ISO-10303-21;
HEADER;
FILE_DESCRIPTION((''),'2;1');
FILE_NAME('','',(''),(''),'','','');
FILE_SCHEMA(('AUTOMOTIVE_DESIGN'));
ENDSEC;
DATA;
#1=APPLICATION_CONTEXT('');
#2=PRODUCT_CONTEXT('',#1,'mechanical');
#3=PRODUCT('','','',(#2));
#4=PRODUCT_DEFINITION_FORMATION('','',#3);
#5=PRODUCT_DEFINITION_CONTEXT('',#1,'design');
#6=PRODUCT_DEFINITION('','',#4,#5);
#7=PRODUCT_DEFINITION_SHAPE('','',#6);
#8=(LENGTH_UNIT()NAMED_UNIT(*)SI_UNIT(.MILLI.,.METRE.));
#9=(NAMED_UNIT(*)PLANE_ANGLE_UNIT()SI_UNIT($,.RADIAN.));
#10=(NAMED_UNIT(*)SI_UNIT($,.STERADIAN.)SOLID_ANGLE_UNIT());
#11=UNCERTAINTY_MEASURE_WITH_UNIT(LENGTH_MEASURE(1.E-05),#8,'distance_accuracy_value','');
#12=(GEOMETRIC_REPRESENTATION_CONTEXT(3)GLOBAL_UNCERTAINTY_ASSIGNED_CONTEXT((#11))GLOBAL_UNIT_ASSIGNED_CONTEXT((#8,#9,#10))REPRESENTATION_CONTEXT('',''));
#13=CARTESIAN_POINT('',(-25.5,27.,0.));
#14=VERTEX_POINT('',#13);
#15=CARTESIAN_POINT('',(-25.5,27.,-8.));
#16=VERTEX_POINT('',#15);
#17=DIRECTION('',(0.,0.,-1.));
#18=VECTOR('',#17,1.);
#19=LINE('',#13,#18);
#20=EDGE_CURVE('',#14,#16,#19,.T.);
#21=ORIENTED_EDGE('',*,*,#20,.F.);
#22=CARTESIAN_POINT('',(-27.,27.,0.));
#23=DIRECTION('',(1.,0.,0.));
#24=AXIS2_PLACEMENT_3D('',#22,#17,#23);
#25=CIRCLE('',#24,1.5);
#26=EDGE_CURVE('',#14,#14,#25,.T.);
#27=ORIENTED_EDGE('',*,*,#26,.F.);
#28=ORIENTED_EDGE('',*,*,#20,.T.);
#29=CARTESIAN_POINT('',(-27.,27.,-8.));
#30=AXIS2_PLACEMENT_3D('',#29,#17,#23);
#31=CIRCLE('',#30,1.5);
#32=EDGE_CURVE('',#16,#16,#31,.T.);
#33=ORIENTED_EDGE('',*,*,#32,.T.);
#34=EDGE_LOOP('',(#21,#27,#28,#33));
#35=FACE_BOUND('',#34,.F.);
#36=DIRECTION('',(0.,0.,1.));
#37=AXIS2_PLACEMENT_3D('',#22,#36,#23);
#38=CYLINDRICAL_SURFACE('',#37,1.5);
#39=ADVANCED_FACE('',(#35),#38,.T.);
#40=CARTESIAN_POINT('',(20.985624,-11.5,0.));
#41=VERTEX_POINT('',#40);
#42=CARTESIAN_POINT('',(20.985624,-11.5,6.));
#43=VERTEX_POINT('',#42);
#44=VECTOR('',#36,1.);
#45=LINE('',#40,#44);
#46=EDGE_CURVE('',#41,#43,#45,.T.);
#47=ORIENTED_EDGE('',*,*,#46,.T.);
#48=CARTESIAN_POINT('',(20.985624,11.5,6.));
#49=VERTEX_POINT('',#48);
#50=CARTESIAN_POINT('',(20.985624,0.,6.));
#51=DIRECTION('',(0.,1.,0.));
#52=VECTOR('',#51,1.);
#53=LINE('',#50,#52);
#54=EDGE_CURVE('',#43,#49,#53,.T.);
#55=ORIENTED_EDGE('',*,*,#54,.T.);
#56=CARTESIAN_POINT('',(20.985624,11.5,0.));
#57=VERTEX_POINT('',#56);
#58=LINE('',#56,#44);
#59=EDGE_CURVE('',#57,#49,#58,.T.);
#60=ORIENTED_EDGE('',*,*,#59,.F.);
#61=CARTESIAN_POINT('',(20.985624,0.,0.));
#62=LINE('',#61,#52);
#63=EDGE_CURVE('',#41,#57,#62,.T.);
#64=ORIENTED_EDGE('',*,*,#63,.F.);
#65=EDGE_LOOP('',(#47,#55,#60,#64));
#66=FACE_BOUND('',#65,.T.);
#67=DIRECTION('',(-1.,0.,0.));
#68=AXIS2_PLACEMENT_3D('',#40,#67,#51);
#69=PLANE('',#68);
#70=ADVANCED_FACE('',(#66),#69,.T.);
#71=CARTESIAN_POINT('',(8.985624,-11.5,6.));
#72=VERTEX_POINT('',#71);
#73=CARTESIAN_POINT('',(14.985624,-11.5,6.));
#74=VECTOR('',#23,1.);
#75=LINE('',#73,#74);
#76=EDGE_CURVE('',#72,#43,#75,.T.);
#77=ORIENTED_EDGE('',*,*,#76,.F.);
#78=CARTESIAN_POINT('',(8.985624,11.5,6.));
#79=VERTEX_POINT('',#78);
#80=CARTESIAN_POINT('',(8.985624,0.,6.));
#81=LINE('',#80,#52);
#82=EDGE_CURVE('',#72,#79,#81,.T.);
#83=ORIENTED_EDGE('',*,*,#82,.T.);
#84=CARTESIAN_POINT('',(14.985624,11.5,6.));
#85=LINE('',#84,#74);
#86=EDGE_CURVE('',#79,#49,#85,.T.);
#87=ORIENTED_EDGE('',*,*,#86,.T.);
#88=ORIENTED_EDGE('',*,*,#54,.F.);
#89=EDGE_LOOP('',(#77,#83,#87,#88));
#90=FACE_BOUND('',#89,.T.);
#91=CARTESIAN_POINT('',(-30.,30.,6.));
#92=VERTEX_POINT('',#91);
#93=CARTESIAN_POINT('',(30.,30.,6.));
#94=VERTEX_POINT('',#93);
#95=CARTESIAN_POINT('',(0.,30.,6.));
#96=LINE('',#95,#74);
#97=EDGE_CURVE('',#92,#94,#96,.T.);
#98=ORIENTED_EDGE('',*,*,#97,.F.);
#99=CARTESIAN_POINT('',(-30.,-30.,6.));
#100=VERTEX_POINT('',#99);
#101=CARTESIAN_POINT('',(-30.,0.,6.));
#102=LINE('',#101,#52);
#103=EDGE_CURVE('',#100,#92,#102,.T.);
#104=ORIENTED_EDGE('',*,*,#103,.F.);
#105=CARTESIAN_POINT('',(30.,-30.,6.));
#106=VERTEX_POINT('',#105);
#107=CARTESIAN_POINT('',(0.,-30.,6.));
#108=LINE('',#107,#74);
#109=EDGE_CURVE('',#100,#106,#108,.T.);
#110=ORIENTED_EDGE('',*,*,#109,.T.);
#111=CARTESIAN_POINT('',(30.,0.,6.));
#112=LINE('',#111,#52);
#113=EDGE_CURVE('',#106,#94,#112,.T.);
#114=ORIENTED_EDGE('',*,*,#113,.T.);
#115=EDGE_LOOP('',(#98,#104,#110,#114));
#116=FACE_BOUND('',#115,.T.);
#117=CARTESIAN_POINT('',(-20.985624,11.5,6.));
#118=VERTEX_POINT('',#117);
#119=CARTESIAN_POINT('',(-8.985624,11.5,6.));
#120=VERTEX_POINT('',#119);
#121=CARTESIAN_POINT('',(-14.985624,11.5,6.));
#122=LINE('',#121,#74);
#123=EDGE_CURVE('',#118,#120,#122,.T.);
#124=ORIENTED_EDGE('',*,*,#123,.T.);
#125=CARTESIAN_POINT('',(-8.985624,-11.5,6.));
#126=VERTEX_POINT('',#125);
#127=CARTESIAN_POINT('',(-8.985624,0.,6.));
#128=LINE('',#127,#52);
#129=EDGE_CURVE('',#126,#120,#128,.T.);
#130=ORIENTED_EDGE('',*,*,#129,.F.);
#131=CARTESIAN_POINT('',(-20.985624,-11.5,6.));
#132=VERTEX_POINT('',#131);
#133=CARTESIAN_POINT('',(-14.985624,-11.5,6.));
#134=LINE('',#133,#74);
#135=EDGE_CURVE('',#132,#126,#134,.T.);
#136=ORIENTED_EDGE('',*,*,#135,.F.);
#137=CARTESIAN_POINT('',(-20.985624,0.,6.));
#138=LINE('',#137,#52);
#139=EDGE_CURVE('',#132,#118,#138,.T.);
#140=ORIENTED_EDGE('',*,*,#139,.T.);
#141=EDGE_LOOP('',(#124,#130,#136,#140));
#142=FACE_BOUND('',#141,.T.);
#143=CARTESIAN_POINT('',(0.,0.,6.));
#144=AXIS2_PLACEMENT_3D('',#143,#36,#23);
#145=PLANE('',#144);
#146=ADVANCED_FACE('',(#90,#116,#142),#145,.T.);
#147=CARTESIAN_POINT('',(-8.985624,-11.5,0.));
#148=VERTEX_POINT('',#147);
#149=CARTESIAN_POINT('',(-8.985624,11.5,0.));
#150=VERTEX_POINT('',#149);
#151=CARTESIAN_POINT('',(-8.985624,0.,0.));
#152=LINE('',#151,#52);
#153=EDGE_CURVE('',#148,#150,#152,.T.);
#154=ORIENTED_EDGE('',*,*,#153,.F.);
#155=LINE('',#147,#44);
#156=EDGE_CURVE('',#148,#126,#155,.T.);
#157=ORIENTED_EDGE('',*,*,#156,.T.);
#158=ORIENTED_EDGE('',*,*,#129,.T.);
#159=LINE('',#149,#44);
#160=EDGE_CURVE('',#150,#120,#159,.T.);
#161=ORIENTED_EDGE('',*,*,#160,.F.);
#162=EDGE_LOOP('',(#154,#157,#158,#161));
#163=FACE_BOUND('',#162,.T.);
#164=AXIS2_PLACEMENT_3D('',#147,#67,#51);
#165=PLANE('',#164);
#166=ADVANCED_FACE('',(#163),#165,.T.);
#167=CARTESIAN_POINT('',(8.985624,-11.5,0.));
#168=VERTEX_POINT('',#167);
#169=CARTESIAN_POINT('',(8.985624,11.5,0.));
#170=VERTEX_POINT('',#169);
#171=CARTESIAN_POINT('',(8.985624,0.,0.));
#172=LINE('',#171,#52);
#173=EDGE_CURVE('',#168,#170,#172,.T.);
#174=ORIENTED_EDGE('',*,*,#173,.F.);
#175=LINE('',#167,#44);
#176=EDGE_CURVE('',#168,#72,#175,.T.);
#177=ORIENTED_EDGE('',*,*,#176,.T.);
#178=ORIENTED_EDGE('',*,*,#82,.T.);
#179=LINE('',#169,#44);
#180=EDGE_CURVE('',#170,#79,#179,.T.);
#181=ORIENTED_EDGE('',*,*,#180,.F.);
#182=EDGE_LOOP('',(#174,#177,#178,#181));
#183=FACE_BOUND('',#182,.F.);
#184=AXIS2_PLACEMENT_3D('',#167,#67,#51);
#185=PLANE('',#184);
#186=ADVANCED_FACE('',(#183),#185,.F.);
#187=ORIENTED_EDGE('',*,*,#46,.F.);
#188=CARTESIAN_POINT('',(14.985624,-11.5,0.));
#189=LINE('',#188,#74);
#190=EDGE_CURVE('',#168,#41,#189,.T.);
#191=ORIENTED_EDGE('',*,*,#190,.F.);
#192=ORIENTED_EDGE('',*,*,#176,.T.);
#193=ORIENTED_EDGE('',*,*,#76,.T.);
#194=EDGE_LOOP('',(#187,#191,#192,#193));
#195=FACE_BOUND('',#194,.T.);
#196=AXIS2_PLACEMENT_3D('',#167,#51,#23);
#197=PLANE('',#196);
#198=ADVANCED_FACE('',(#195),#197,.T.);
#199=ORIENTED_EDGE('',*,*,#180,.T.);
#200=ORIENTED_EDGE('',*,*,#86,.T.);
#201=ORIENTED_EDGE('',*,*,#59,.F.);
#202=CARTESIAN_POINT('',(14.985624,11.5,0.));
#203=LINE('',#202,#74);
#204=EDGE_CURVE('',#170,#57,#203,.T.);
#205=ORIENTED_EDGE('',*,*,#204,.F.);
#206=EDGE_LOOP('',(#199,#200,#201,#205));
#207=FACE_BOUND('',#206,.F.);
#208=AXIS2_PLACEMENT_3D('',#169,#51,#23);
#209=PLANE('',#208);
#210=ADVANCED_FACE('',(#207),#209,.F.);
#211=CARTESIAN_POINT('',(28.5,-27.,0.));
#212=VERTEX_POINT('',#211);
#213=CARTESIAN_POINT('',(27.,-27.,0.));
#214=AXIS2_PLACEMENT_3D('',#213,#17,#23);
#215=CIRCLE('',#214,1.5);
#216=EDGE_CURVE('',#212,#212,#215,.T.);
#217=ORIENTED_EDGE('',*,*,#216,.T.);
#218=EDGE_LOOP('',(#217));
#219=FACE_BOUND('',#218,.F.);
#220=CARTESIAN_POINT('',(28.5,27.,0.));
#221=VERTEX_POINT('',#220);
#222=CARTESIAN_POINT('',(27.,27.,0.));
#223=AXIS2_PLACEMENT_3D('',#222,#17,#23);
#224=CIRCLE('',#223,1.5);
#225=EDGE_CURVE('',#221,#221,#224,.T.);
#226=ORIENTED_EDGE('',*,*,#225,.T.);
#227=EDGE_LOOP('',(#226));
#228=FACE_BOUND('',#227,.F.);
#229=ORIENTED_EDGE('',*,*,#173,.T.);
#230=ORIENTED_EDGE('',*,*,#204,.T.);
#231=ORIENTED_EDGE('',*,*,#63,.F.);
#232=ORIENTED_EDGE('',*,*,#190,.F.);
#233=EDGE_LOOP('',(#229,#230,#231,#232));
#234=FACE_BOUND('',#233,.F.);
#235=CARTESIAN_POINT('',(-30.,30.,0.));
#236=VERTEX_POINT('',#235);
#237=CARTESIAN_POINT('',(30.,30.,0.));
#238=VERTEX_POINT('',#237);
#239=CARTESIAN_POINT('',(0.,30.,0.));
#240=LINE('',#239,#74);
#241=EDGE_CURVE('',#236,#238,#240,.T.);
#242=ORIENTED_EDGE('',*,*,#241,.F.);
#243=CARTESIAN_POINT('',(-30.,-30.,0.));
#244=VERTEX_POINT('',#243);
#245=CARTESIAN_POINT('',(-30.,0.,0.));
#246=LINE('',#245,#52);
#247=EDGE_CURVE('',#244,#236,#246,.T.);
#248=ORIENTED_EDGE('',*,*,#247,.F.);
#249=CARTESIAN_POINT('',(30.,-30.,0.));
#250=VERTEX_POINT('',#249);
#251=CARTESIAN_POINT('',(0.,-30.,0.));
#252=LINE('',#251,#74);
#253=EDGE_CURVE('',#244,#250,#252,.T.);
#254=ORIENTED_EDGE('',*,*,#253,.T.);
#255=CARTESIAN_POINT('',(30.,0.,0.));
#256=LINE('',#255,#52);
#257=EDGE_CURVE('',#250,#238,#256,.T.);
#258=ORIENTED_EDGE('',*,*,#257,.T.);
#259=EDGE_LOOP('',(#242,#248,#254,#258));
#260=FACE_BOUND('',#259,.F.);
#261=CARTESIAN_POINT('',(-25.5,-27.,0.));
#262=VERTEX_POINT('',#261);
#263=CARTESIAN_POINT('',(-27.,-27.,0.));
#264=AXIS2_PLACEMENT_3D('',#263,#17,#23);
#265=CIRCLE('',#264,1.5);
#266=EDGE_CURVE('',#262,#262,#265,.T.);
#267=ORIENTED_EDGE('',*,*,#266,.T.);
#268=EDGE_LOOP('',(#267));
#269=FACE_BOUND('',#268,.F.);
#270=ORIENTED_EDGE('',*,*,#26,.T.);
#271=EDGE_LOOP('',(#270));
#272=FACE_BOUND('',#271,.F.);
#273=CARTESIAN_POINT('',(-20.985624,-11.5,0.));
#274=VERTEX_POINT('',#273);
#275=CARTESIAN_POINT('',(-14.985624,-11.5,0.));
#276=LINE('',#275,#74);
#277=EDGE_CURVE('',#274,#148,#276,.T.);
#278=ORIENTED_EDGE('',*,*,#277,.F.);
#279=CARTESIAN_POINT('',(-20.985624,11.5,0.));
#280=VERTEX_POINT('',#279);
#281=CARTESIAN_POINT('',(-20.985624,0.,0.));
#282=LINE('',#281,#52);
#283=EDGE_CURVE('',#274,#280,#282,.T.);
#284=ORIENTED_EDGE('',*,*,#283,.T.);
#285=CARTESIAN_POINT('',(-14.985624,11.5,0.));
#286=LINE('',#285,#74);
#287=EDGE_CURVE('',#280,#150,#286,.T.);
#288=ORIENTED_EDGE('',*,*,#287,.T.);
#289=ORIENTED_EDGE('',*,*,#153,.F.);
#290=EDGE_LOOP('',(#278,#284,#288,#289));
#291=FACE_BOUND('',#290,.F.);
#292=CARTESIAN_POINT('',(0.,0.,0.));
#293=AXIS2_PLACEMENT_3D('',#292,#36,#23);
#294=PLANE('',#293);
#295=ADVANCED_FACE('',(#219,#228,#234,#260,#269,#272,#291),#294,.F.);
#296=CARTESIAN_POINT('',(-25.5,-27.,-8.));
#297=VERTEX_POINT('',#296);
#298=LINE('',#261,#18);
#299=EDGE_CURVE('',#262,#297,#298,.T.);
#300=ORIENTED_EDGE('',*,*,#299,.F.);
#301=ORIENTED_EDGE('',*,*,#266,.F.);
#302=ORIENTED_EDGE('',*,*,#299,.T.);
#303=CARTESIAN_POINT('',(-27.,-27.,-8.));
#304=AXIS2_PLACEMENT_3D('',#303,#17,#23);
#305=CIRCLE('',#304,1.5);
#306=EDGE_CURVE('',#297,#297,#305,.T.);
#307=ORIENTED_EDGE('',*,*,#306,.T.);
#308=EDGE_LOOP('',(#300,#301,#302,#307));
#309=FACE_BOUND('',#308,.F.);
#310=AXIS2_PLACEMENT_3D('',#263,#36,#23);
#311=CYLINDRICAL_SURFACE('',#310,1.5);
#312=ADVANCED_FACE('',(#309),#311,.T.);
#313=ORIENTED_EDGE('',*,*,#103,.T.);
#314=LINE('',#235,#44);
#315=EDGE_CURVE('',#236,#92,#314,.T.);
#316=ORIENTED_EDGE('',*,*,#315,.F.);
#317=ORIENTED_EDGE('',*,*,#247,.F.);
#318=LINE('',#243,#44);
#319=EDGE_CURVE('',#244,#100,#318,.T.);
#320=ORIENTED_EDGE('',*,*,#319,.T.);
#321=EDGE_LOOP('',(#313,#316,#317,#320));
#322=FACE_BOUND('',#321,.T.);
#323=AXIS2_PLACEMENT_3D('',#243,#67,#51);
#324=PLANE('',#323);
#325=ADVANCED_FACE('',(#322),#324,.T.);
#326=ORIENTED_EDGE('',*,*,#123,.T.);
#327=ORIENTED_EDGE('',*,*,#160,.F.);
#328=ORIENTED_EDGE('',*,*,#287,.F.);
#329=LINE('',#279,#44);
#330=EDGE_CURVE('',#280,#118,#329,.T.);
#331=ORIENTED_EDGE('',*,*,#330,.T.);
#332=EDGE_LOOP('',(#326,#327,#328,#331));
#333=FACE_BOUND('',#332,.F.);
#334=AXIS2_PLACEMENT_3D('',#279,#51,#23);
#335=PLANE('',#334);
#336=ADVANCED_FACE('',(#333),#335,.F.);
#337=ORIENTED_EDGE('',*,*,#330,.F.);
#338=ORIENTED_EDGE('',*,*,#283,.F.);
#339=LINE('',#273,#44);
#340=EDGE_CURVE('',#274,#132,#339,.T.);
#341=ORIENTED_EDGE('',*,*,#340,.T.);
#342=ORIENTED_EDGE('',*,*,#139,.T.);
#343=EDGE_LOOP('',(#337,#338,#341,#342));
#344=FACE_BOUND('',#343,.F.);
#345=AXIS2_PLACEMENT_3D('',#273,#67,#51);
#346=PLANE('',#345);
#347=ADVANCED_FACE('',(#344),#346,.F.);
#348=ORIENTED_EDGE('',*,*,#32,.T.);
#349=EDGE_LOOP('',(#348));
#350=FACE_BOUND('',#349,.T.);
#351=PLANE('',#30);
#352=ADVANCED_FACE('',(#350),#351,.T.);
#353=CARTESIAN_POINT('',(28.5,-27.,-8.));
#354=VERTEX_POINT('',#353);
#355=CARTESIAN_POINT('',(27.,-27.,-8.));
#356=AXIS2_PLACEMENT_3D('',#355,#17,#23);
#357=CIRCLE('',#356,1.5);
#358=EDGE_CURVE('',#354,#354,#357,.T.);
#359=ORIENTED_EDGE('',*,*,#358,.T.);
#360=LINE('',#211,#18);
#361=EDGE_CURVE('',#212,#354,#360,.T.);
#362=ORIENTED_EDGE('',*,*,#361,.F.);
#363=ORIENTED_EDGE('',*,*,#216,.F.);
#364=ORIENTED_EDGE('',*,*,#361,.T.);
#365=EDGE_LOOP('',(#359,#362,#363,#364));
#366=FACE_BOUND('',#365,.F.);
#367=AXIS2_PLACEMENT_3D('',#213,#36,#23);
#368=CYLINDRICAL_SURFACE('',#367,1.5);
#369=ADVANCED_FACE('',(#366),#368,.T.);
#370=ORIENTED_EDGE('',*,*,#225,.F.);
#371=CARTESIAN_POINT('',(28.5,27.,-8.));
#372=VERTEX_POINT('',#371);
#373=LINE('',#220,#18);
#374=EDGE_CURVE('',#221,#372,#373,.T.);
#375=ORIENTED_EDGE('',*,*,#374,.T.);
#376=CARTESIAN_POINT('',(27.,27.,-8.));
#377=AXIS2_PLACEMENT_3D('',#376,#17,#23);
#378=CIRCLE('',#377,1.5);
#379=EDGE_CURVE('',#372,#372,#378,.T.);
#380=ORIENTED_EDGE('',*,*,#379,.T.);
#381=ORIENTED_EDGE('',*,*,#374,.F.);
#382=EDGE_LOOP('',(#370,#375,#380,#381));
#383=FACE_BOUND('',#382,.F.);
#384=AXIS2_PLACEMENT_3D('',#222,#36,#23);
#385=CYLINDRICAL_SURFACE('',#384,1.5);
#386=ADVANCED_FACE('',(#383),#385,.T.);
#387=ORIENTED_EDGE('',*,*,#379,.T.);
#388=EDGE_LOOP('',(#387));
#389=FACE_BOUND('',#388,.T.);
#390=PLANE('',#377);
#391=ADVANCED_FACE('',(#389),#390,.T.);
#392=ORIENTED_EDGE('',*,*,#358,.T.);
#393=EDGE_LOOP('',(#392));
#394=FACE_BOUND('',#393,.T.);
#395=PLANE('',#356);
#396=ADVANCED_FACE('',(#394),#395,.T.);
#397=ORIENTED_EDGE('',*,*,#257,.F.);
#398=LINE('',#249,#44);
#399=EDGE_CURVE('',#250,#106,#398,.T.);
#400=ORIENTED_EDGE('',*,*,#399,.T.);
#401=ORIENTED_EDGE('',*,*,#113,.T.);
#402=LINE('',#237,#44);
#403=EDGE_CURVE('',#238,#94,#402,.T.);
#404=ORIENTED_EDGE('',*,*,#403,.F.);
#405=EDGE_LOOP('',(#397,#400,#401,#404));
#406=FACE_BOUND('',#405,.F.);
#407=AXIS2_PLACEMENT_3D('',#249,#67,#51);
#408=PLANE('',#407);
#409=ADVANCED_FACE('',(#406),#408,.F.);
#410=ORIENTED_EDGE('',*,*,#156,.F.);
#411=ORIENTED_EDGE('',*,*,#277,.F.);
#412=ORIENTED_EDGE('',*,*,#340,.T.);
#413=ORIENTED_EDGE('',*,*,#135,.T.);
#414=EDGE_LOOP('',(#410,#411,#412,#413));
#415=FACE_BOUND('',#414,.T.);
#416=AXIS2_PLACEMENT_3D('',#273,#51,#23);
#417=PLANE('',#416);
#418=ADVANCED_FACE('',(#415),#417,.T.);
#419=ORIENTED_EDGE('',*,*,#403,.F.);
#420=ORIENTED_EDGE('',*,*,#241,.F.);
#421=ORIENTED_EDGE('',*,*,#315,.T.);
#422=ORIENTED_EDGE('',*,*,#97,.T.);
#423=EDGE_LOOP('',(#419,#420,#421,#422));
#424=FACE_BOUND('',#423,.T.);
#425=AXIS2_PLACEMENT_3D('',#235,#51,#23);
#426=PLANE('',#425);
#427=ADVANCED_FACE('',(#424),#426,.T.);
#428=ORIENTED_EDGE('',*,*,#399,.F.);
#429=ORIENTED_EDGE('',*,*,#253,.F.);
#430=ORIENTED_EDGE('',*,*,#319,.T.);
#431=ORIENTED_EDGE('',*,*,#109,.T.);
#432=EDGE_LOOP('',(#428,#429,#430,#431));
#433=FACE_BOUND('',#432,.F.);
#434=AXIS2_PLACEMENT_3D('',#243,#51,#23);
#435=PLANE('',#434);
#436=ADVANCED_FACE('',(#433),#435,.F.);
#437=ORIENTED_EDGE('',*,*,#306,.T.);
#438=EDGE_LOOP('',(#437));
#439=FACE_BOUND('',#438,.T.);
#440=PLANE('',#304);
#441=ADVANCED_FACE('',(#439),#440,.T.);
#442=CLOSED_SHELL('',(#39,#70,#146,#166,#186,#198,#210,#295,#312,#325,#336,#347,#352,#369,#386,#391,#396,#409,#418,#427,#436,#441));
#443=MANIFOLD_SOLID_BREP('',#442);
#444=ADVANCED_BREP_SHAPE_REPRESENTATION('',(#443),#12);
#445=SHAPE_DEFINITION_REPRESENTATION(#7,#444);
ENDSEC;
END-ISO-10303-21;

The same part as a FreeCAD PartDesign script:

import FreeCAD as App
import Part
import Sketcher
Q = App.Units.Quantity

doc = App.newDocument("Part")
body = doc.addObject("PartDesign::Body", "Body")

sketch1 = body.newObject("Sketcher::SketchObject", "Sketch")
sketch1.AttachmentSupport = (doc.getObject("XY_Plane"), [""])
sketch1.MapMode = "FlatFace"
sketch1.addGeometry([
    Part.LineSegment(App.Vector(-30, 30, 0), App.Vector(-30, -30, 0)),
    Part.LineSegment(App.Vector(-30, -30, 0), App.Vector(30, -30, 0)),
    Part.LineSegment(App.Vector(30, -30, 0), App.Vector(30, 30, 0)),
    Part.LineSegment(App.Vector(30, 30, 0), App.Vector(-30, 30, 0)),
    Part.LineSegment(App.Vector(-9, -12, 0), App.Vector(-21, -12, 0)),
    Part.LineSegment(App.Vector(-21, -12, 0), App.Vector(-21, 12, 0)),
    Part.LineSegment(App.Vector(-21, 12, 0), App.Vector(-9, 12, 0)),
    Part.LineSegment(App.Vector(-9, 12, 0), App.Vector(-9, -12, 0)),
    Part.LineSegment(App.Vector(21, -12, 0), App.Vector(9, -12, 0)),
    Part.LineSegment(App.Vector(9, -12, 0), App.Vector(9, 12, 0)),
    Part.LineSegment(App.Vector(9, 12, 0), App.Vector(21, 12, 0)),
    Part.LineSegment(App.Vector(21, 12, 0), App.Vector(21, -12, 0)),
], False)
sketch1.addConstraint([
    Sketcher.Constraint("Coincident", 0, 2, 1, 1),
    Sketcher.Constraint("Coincident", 1, 2, 2, 1),
    Sketcher.Constraint("Coincident", 2, 2, 3, 1),
    Sketcher.Constraint("Coincident", 3, 2, 0, 1),
    Sketcher.Constraint("Coincident", 4, 2, 5, 1),
    Sketcher.Constraint("Coincident", 5, 2, 6, 1),
    Sketcher.Constraint("Coincident", 6, 2, 7, 1),
    Sketcher.Constraint("Coincident", 7, 2, 4, 1),
    Sketcher.Constraint("Coincident", 8, 2, 9, 1),
    Sketcher.Constraint("Coincident", 9, 2, 10, 1),
    Sketcher.Constraint("Coincident", 10, 2, 11, 1),
    Sketcher.Constraint("Coincident", 11, 2, 8, 1),
    Sketcher.Constraint("Vertical", 0),
    Sketcher.Constraint("Horizontal", 1),
    Sketcher.Constraint("Vertical", 2),
    Sketcher.Constraint("Horizontal", 3),
    Sketcher.Constraint("Horizontal", 4),
    Sketcher.Constraint("Vertical", 5),
    Sketcher.Constraint("Horizontal", 6),
    Sketcher.Constraint("Vertical", 7),
    Sketcher.Constraint("Horizontal", 8),
    Sketcher.Constraint("Vertical", 9),
    Sketcher.Constraint("Horizontal", 10),
    Sketcher.Constraint("Vertical", 11),
    Sketcher.Constraint("Symmetric", 0, 2, 2, 2, -1, 1),
    Sketcher.Constraint("Symmetric", 6, 2, 8, 2, -1, 1),
    Sketcher.Constraint("Symmetric", 4, 2, 10, 2, -1, 1),
    Sketcher.Constraint("Horizontal", 7, 2, 8, 2),
    Sketcher.Constraint("Equal", 3, 0),
    Sketcher.Constraint("DistanceX", 1, 1, 1, 2, Q("60 mm")),
    Sketcher.Constraint("DistanceX", 4, 2, 4, 1, Q("12 mm")),
    Sketcher.Constraint("DistanceY", 5, 1, 5, 2, Q("23 mm")),
    Sketcher.Constraint("DistanceX", 4, 2, 8, 2, Q("29.971248 mm")),
])
pad1 = body.newObject("PartDesign::Pad", "Pad")
pad1.Profile = sketch1
pad1.Length = 6

sketch2 = body.newObject("Sketcher::SketchObject", "Sketch001")
sketch2.AttachmentSupport = (doc.getObject("XY_Plane"), [""])
sketch2.MapMode = "FlatFace"
sketch2.addGeometry([
    Part.Circle(App.Vector(-27, -27, 0), App.Vector(0, 0, 1), 1.5),
    Part.Circle(App.Vector(27, -27, 0), App.Vector(0, 0, 1), 1.5),
    Part.Circle(App.Vector(27, 27, 0), App.Vector(0, 0, 1), 1.5),
    Part.Circle(App.Vector(-27, 27, 0), App.Vector(0, 0, 1), 1.5),
], False)
sketch2.addConstraint([
    Sketcher.Constraint("Equal", 0, 1),
    Sketcher.Constraint("Equal", 1, 2),
    Sketcher.Constraint("Equal", 2, 3),
    Sketcher.Constraint("Symmetric", 0, 3, 2, 3, -1, 1),
    Sketcher.Constraint("Symmetric", 1, 3, 3, 3, -1, 1),
    Sketcher.Constraint("Symmetric", 0, 3, 1, 3, -2),
    Sketcher.Constraint("Diameter", 0, Q("3 mm")),
    Sketcher.Constraint("DistanceX", 0, 3, -1, 1, Q("27 mm")),
    Sketcher.Constraint("DistanceY", 0, 3, -1, 1, Q("27 mm")),
])
pad2 = body.newObject("PartDesign::Pad", "Pad001")
pad2.Profile = sketch2
pad2.Length = 8
pad2.Reversed = True

doc.recompute()
